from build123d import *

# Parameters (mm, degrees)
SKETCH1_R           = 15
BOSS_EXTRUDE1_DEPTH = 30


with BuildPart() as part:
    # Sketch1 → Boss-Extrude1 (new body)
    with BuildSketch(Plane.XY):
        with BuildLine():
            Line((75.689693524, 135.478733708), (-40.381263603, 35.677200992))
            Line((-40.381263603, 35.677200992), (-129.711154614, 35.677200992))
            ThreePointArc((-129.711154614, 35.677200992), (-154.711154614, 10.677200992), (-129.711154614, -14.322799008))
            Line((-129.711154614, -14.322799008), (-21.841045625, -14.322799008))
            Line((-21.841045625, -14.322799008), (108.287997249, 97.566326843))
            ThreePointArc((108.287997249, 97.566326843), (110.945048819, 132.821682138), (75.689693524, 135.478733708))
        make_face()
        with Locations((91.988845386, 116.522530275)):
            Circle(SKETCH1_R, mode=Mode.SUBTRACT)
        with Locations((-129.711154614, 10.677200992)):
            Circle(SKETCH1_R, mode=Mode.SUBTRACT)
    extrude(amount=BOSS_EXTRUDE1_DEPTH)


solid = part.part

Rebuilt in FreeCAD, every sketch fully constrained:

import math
import FreeCAD as App
import Part
import Sketcher
from FreeCAD import Vector
Q = App.Units.Quantity

doc = App.newDocument("Part")
params = doc.addObject("Spreadsheet::Sheet", "Params")
for row, (alias, value) in enumerate([
    ("sketch1_diameter", "30 mm"),
    ("sketch1_radius", "25 mm"),
    ("pad1_length", "30 mm"),
], start=1):
    params.set(f"A{row}", alias)
    params.set(f"B{row}", "=" + value)
    params.setAlias(f"B{row}", alias)

body = doc.addObject("PartDesign::Body", "Body")

sketch1 = body.newObject("Sketcher::SketchObject", "Sketch")
sketch1.AttachmentSupport = (doc.getObject("XY_Plane"), [""])
sketch1.MapMode = "FlatFace"
sketch1.addGeometry(Part.LineSegment(Vector(76, 135, 0), Vector(-40, 36, 0)), False)
sketch1.addGeometry(Part.LineSegment(Vector(-40, 36, 0), Vector(-130, 36, 0)), False)
sketch1.addGeometry(Part.ArcOfCircle(Part.Circle(Vector(-130, 11, 0), Vector(0, 0, 1), 25), math.radians(90), math.radians(270)), False)
sketch1.addGeometry(Part.LineSegment(Vector(-130, -14, 0), Vector(-22, -14, 0)), False)
sketch1.addGeometry(Part.LineSegment(Vector(-22, -14, 0), Vector(108, 98, 0)), False)
sketch1.addGeometry(Part.ArcOfCircle(Part.Circle(Vector(92, 117, 0), Vector(0, 0, 1), 25), math.radians(-49), math.radians(131)), False)
sketch1.addGeometry(Part.Circle(Vector(-130, 11, 0), Vector(0, 0, 1), 15), False)
sketch1.addGeometry(Part.Circle(Vector(92, 117, 0), Vector(0, 0, 1), 15), False)
sketch1.addConstraint(Sketcher.Constraint("Coincident", 0, 2, 1, 1))
sketch1.addConstraint(Sketcher.Constraint("Tangent", 1, 2, 2, 1))
sketch1.addConstraint(Sketcher.Constraint("Tangent", 2, 2, 3, 1))
sketch1.addConstraint(Sketcher.Constraint("Coincident", 3, 2, 4, 1))
sketch1.addConstraint(Sketcher.Constraint("Tangent", 4, 2, 5, 1))
sketch1.addConstraint(Sketcher.Constraint("Tangent", 5, 2, 0, 1))
sketch1.addConstraint(Sketcher.Constraint("Horizontal", 1))
sketch1.addConstraint(Sketcher.Constraint("Horizontal", 3))
sketch1.addConstraint(Sketcher.Constraint("Coincident", 6, 3, 2, 3))
sketch1.addConstraint(Sketcher.Constraint("Coincident", 7, 3, 5, 3))
sketch1.addConstraint(Sketcher.Constraint("Equal", 2, 5))
sketch1.addConstraint(Sketcher.Constraint("Equal", 6, 7))
sketch1.addConstraint(Sketcher.Constraint("Parallel", 0, 4))
sketch1.addConstraint(Sketcher.Constraint("Diameter", 6, Q("30 mm")))
sketch1.addConstraint(Sketcher.Constraint("Radius", 2, Q("25 mm")))
sketch1.addConstraint(Sketcher.Constraint("Angle", 0, Q("-139.31 deg")))
sketch1.addConstraint(Sketcher.Constraint("DistanceX", 2, 3, 5, 3, Q("221.7 mm")))
sketch1.addConstraint(Sketcher.Constraint("Distance", 0, Q("153.077801 mm")))
sketch1.addConstraint(Sketcher.Constraint("DistanceY", -1, 1, 2, 3, Q("10.677201 mm")))
sketch1.addConstraint(Sketcher.Constraint("DistanceX", 2, 3, -1, 1, Q("129.711155 mm")))
sketch1.setExpression("Constraints[13]", "Params.sketch1_diameter")
sketch1.setExpression("Constraints[14]", "Params.sketch1_radius")
pad1 = body.newObject("PartDesign::Pad", "Pad")
pad1.Profile = sketch1
pad1.setExpression("Length", "Params.pad1_length")

doc.recompute()
